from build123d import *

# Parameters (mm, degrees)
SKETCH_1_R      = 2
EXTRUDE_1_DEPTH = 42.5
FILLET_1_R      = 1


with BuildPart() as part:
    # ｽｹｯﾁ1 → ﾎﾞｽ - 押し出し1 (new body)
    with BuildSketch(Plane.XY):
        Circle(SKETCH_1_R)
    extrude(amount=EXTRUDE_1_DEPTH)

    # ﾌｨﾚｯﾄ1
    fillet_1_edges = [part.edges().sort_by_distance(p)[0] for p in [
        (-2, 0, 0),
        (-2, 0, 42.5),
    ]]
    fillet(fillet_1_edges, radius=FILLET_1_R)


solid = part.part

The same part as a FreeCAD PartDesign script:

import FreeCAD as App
import Part
import Sketcher
Q = App.Units.Quantity


def edges_at(feature, points):
    """Names of the edges that pass closest to the given points."""
    edges = feature.Shape.Edges
    near = lambda p: min(range(len(edges)), key=lambda i: edges[i].distToShape(Part.Vertex(*p))[0])
    return sorted({f"Edge{near(p) + 1}" for p in points})

doc = App.newDocument("Part")
params = doc.addObject("Spreadsheet::Sheet", "Params")
for row, (alias, value) in enumerate([
    ("sketch1_diameter", "4 mm"),
    ("pad1_length", "42.5 mm"),
    ("fillet_radius", "1 mm"),
], start=1):
    params.set(f"A{row}", alias)
    params.set(f"B{row}", "=" + value)
    params.setAlias(f"B{row}", alias)

body = doc.addObject("PartDesign::Body", "Body")

# Sketch on XY plane
sketch1 = body.newObject("Sketcher::SketchObject", "Sketch")
sketch1.AttachmentSupport = (doc.getObject("XY_Plane"), [""])
sketch1.MapMode = "FlatFace"
sketch1.addGeometry(Part.Circle(App.Vector(0, 0, 0), App.Vector(0, 0, 1), 2), False)
sketch1.addConstraint([
    Sketcher.Constraint("Coincident", 0, 3, -1, 1),
    Sketcher.Constraint("Diameter", 0, Q("4 mm")),
])
sketch1.setExpression("Constraints[1]", "Params.sketch1_diameter")
pad1 = body.newObject("PartDesign::Pad", "Pad")
pad1.Profile = sketch1
pad1.setExpression("Length", "Params.pad1_length")
doc.recompute()

fillet = body.newObject("PartDesign::Fillet", "Fillet")
fillet.Base = (pad1, edges_at(pad1, [(-2, 0, 0), (-2, 0, 42.5)]))
fillet.setExpression("Radius", "Params.fillet_radius")

doc.recompute()
